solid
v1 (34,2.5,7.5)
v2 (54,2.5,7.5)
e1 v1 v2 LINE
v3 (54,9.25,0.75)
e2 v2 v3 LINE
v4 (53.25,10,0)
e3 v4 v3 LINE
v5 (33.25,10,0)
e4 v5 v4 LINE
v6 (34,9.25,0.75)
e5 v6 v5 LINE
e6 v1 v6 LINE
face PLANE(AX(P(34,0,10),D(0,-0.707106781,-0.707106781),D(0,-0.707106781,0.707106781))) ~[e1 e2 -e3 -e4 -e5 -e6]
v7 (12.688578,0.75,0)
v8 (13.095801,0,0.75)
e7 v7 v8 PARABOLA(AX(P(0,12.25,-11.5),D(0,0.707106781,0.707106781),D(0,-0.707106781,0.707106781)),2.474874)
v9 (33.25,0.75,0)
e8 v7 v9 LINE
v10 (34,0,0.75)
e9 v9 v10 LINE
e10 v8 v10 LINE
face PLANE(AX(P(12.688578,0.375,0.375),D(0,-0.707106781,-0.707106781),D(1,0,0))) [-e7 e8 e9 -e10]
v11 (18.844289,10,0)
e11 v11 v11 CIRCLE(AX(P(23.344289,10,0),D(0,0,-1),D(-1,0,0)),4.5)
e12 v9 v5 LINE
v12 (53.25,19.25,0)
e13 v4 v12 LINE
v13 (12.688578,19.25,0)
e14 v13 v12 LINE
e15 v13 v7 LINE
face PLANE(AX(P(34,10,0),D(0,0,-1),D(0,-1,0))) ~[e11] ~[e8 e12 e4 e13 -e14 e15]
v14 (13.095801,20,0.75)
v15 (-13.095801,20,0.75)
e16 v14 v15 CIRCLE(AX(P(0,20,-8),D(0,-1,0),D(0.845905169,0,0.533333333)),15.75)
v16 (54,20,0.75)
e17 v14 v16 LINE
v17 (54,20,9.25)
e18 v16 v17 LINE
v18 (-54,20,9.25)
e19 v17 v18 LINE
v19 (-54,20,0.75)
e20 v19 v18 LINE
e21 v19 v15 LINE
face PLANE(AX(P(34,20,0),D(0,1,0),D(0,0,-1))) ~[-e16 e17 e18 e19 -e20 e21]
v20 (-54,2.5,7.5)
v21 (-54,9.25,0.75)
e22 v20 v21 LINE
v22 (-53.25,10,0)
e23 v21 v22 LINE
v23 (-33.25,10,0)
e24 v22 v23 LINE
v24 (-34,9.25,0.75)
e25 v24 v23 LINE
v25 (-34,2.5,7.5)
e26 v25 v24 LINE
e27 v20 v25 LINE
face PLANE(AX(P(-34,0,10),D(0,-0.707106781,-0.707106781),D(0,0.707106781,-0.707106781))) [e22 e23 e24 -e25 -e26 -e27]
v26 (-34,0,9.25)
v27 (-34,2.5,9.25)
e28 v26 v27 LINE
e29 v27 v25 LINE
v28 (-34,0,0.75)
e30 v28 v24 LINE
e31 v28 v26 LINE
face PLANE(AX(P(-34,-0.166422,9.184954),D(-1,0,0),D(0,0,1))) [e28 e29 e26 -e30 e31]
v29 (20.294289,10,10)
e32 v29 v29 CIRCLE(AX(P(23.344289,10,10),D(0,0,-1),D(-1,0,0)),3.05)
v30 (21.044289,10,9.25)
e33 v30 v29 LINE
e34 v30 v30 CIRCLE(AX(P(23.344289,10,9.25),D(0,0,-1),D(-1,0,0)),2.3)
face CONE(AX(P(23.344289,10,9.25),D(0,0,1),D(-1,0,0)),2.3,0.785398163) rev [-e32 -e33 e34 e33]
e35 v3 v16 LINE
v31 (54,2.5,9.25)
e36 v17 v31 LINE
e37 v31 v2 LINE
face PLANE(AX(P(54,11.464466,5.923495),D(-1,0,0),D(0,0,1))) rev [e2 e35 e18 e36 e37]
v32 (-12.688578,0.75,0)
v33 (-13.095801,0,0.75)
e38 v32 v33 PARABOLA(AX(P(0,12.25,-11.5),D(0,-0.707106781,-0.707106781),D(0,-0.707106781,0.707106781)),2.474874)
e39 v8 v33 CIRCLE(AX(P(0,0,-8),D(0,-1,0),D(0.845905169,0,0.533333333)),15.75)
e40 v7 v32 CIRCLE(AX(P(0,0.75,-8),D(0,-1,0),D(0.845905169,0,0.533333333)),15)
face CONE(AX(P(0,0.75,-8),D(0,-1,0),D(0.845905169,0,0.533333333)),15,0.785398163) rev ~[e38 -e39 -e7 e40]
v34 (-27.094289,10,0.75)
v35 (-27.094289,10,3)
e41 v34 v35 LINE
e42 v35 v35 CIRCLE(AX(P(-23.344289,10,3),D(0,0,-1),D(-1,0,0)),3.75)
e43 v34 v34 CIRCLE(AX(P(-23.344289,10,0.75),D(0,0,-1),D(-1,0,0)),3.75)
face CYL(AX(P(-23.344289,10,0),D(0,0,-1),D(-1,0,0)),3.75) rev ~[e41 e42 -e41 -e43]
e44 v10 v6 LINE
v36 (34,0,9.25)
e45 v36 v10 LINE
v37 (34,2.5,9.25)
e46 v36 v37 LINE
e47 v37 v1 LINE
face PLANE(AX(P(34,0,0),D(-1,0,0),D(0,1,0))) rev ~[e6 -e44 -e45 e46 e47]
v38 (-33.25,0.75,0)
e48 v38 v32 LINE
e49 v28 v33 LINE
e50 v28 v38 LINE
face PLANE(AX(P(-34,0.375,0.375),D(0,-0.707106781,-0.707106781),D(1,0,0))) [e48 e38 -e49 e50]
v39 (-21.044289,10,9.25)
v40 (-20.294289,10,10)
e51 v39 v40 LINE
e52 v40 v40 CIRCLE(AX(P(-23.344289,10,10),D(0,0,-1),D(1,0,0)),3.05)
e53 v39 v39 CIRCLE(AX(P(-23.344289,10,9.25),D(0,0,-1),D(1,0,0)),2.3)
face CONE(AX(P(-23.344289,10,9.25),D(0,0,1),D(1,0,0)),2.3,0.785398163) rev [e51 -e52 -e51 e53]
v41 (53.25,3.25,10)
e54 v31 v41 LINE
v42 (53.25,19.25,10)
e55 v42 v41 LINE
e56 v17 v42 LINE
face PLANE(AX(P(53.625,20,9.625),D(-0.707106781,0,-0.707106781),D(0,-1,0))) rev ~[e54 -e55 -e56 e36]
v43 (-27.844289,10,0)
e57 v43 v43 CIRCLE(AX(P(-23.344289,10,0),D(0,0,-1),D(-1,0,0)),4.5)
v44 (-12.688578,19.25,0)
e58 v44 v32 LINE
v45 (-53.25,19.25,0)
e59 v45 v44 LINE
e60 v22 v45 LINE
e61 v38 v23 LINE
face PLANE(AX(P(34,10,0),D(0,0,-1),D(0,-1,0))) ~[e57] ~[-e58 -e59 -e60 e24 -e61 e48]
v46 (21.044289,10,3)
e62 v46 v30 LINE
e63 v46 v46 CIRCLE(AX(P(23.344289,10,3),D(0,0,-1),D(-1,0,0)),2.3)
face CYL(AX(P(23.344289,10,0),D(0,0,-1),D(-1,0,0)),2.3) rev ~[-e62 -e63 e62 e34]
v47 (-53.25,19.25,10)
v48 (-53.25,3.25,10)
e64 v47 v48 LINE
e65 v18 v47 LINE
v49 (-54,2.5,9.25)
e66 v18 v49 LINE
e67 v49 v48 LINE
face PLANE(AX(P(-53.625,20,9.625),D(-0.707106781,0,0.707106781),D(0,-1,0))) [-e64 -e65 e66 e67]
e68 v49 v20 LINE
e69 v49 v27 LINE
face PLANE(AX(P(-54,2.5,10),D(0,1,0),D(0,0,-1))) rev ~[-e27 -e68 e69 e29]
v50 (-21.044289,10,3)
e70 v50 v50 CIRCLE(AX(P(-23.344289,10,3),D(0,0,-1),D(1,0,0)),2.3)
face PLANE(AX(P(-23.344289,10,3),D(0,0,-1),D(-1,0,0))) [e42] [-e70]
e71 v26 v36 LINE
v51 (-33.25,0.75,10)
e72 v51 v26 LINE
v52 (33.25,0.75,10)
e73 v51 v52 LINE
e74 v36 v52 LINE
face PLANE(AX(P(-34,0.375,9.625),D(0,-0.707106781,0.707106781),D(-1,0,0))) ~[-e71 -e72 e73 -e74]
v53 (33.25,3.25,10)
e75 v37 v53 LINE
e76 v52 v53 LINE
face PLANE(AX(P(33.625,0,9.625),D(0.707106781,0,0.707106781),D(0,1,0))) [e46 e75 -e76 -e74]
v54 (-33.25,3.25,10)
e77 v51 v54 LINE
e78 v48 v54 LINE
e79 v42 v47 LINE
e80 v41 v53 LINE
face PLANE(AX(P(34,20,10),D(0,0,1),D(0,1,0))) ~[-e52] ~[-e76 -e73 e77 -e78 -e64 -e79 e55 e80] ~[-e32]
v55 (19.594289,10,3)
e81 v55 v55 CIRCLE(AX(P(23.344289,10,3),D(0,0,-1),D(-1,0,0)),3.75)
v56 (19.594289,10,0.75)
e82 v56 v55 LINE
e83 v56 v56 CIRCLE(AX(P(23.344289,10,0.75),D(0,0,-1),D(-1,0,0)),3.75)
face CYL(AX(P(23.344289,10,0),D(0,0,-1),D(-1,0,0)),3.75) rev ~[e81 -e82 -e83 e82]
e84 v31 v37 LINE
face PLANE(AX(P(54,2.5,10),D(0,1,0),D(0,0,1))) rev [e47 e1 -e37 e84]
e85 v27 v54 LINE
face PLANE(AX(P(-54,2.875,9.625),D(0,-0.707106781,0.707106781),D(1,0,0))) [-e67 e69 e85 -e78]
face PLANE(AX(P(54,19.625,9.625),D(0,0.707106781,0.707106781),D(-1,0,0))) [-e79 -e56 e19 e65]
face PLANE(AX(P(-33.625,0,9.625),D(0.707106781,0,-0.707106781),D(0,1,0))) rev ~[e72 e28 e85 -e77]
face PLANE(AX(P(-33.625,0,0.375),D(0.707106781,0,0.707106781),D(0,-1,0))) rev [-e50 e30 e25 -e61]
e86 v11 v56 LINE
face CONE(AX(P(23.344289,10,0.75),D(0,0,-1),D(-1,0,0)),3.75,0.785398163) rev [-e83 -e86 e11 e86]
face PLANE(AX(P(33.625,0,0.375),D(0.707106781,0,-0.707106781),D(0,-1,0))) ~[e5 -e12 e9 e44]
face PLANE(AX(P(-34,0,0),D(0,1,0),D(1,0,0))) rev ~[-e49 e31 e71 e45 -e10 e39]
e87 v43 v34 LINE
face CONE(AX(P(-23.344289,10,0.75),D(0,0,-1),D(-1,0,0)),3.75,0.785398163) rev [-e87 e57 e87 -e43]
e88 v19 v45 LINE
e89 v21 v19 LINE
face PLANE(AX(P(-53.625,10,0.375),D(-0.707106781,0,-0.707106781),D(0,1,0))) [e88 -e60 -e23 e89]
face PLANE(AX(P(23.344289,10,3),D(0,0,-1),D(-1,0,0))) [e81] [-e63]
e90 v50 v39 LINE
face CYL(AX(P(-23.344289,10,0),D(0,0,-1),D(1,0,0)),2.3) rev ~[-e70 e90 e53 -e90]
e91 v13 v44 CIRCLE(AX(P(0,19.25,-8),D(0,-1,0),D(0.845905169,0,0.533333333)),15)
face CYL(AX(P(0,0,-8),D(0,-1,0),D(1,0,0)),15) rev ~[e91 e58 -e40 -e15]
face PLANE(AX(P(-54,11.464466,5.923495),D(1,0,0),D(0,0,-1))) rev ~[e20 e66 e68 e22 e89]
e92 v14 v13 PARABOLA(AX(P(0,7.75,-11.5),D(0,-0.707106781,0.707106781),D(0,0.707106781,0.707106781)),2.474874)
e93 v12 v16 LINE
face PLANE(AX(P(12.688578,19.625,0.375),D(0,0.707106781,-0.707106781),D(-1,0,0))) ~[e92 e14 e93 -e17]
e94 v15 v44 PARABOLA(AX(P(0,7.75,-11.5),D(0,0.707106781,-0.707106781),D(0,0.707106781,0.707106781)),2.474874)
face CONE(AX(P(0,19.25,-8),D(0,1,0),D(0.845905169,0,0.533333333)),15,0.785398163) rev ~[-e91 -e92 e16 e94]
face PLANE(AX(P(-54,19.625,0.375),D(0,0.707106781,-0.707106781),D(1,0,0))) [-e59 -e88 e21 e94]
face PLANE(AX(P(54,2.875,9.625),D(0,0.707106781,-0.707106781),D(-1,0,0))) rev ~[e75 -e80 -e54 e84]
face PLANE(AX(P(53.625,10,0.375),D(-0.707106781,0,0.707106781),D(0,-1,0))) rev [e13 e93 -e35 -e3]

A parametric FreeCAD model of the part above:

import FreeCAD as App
import Part
import Sketcher

V = App.Vector
Q = App.Units.Quantity


def edges_at(feature, points):
    """Names of the edges that pass closest to the given points."""
    edges = feature.Shape.Edges
    near = lambda p: min(range(len(edges)), key=lambda i: edges[i].distToShape(Part.Vertex(*p))[0])
    return sorted({f"Edge{near(p) + 1}" for p in points})

doc = App.newDocument("Part")
params = doc.addObject("Spreadsheet::Sheet", "Params")
for row, (alias, value) in enumerate([
    ("sketch1_width", "68 mm"),
    ("sketch1_height", "20 mm"),
    ("pad1_length", "10 mm"),
    ("sketch2_width", "20 mm"),
    ("sketch2_width2", "10 mm"),
    ("pad2_length", "20 mm"),
    ("sketch3_diameter", "30 mm"),
    ("pocket1_length", "20 mm"),
    ("sketch4_diameter", "4.6 mm"),
    ("pocket2_length", "20 mm"),
    ("sketch5_diameter", "7.5 mm"),
    ("pocket3_length", "3 mm"),
    ("pocket4_length", "20 mm"),
    ("chamfer_size", "0.75 mm"),
], start=1):
    params.set(f"A{row}", alias)
    params.set(f"B{row}", "=" + value)
    params.setAlias(f"B{row}", alias)

body = doc.addObject("PartDesign::Body", "Body")

# Sketch on XY plane
sketch1 = body.newObject("Sketcher::SketchObject", "Sketch")
sketch1.AttachmentSupport = (doc.getObject("XY_Plane"), [""])
sketch1.MapMode = "FlatFace"
sketch1.addGeometry(Part.LineSegment(V(-34, 20, 0), V(-34, 0, 0)), False)
sketch1.addGeometry(Part.LineSegment(V(-34, 0, 0), V(34, 0, 0)), False)
sketch1.addGeometry(Part.LineSegment(V(34, 0, 0), V(34, 20, 0)), False)
sketch1.addGeometry(Part.LineSegment(V(34, 20, 0), V(-34, 20, 0)), False)
sketch1.addConstraint(Sketcher.Constraint("Coincident", 0, 2, 1, 1))
sketch1.addConstraint(Sketcher.Constraint("Coincident", 1, 2, 2, 1))
sketch1.addConstraint(Sketcher.Constraint("Coincident", 2, 2, 3, 1))
sketch1.addConstraint(Sketcher.Constraint("Coincident", 3, 2, 0, 1))
sketch1.addConstraint(Sketcher.Constraint("Vertical", 0))
sketch1.addConstraint(Sketcher.Constraint("Horizontal", 1))
sketch1.addConstraint(Sketcher.Constraint("Vertical", 2))
sketch1.addConstraint(Sketcher.Constraint("Horizontal", 3))
sketch1.addConstraint(Sketcher.Constraint("Symmetric", 0, 2, 1, 2, -1, 1))
sketch1.addConstraint(Sketcher.Constraint("DistanceX", 1, 1, 1, 2, Q("68 mm")))
sketch1.addConstraint(Sketcher.Constraint("DistanceY", 0, 2, 0, 1, Q("20 mm")))
sketch1.setExpression("Constraints[9]", "Params.sketch1_width")
sketch1.setExpression("Constraints[10]", "Params.sketch1_height")
pad1 = body.newObject("PartDesign::Pad", "Pad")
pad1.Profile = sketch1
pad1.setExpression("Length", "Params.pad1_length")

# Sketch on YZ plane
sketch2 = body.newObject("Sketcher::SketchObject", "Sketch001")
sketch2.AttachmentSupport = (doc.getObject("YZ_Plane"), [""])
sketch2.MapMode = "FlatFace"
sketch2.AttachmentOffset = App.Placement(V(0, 0, -34), App.Rotation())
sketch2.addGeometry(Part.LineSegment(V(10, 0, 0), V(0, 10, 0)), False)
sketch2.addGeometry(Part.LineSegment(V(0, 10, 0), V(20, 10, 0)), False)
sketch2.addGeometry(Part.LineSegment(V(20, 10, 0), V(20, 0, 0)), False)
sketch2.addGeometry(Part.LineSegment(V(20, 0, 0), V(10, 0, 0)), False)
sketch2.addConstraint(Sketcher.Constraint("Coincident", 0, 2, 1, 1))
sketch2.addConstraint(Sketcher.Constraint("Coincident", 1, 2, 2, 1))
sketch2.addConstraint(Sketcher.Constraint("Coincident", 2, 2, 3, 1))
sketch2.addConstraint(Sketcher.Constraint("Coincident", 3, 2, 0, 1))
sketch2.addConstraint(Sketcher.Constraint("Horizontal", 1))
sketch2.addConstraint(Sketcher.Constraint("Vertical", 2))
sketch2.addConstraint(Sketcher.Constraint("Horizontal", 3))
sketch2.addConstraint(Sketcher.Constraint("PointOnObject", 0, 2, -2))
sketch2.addConstraint(Sketcher.Constraint("PointOnObject", 2, 2, -1))
sketch2.addConstraint(Sketcher.Constraint("Equal", 3, 2))
sketch2.addConstraint(Sketcher.Constraint("DistanceX", 1, 1, 1, 2, Q("20 mm")))
sketch2.addConstraint(Sketcher.Constraint("DistanceX", 3, 2, 3, 1, Q("10 mm")))
sketch2.setExpression("Constraints[10]", "Params.sketch2_width")
sketch2.setExpression("Constraints[11]", "Params.sketch2_width2")
pad2 = body.newObject("PartDesign::Pad", "Pad001")
pad2.Profile = sketch2
pad2.setExpression("Length", "Params.pad2_length")
pad2.Reversed = True
doc.recompute()

mirrored = body.newObject("PartDesign::Mirrored", "Mirrored")
mirrored.Originals = [pad2]
mirrored.MirrorPlane = (doc.getObject("YZ_Plane"), [""])
body.Tip = mirrored

# Sketch on XZ plane
sketch3 = body.newObject("Sketcher::SketchObject", "Sketch002")
sketch3.AttachmentSupport = (doc.getObject("XZ_Plane"), [""])
sketch3.MapMode = "FlatFace"
sketch3.addGeometry(Part.Circle(V(0, -8, 0), V(0, 0, 1), 15), False)
sketch3.addConstraint(Sketcher.Constraint("PointOnObject", 0, 3, -2))
sketch3.addConstraint(Sketcher.Constraint("Diameter", 0, Q("30 mm")))
sketch3.addConstraint(Sketcher.Constraint("DistanceY", 0, 3, -1, 1, Q("8 mm")))
sketch3.setExpression("Constraints[1]", "Params.sketch3_diameter")
pocket1 = body.newObject("PartDesign::Pocket", "Pocket")
pocket1.Profile = sketch3
pocket1.setExpression("Length", "Params.pocket1_length")

# Sketch on XY plane
sketch4 = body.newObject("Sketcher::SketchObject", "Sketch003")
sketch4.AttachmentSupport = (doc.getObject("XY_Plane"), [""])
sketch4.MapMode = "FlatFace"
sketch4.addGeometry(Part.Circle(V(23.344289, 10, 0), V(0, 0, 1), 2.3), False)
sketch4.addGeometry(Part.Circle(V(-23.344289, 10, 0), V(0, 0, 1), 2.3), False)
sketch4.addConstraint(Sketcher.Constraint("Equal", 0, 1))
sketch4.addConstraint(Sketcher.Constraint("Symmetric", 0, 3, 1, 3, -2))
sketch4.addConstraint(Sketcher.Constraint("Diameter", 0, Q("4.6 mm")))
sketch4.addConstraint(Sketcher.Constraint("DistanceY", -1, 1, 0, 3, Q("10 mm")))
sketch4.addConstraint(Sketcher.Constraint("DistanceX", -1, 1, 0, 3, Q("23.344289 mm")))
sketch4.setExpression("Constraints[2]", "Params.sketch4_diameter")
pocket2 = body.newObject("PartDesign::Pocket", "Pocket001")
pocket2.Profile = sketch4
pocket2.setExpression("Length", "Params.pocket2_length")
pocket2.Reversed = True

# Sketch on XY plane
sketch5 = body.newObject("Sketcher::SketchObject", "Sketch004")
sketch5.AttachmentSupport = (doc.getObject("XY_Plane"), [""])
sketch5.MapMode = "FlatFace"
sketch5.addGeometry(Part.Circle(V(23.344289, 10, 0), V(0, 0, 1), 3.75), False)
sketch5.addGeometry(Part.Circle(V(-23.344289, 10, 0), V(0, 0, 1), 3.75), False)
sketch5.addConstraint(Sketcher.Constraint("Equal", 0, 1))
sketch5.addConstraint(Sketcher.Constraint("Symmetric", 0, 3, 1, 3, -2))
sketch5.addConstraint(Sketcher.Constraint("Diameter", 0, Q("7.5 mm")))
sketch5.addConstraint(Sketcher.Constraint("DistanceY", -1, 1, 0, 3, Q("10 mm")))
sketch5.addConstraint(Sketcher.Constraint("DistanceX", -1, 1, 0, 3, Q("23.344289 mm")))
sketch5.setExpression("Constraints[2]", "Params.sketch5_diameter")
pocket3 = body.newObject("PartDesign::Pocket", "Pocket002")
pocket3.Profile = sketch5
pocket3.setExpression("Length", "Params.pocket3_length")
pocket3.Reversed = True

# Sketch on YZ plane
sketch6 = body.newObject("Sketcher::SketchObject", "Sketch005")
sketch6.AttachmentSupport = (doc.getObject("YZ_Plane"), [""])
sketch6.MapMode = "FlatFace"
sketch6.AttachmentOffset = App.Placement(V(0, 0, -54), App.Rotation())
sketch6.addGeometry(Part.LineSegment(V(2.5, 10, 0), V(2.5, 4.852605, 0)), False)
sketch6.addGeometry(Part.LineSegment(V(2.5, 4.852605, 0), V(-2.668604, 4.852605, 0)), False)
sketch6.addGeometry(Part.LineSegment(V(-2.668604, 4.852605, 0), V(-2.788105, 13.586779, 0)), False)
sketch6.addGeometry(Part.LineSegment(V(-2.788105, 13.586779, 0), V(2.151025, 13.586779, 0)), False)
sketch6.addGeometry(Part.LineSegment(V(2.151025, 13.586779, 0), V(2.5, 10, 0)), False)
sketch6.addConstraint(Sketcher.Constraint("Coincident", 0, 2, 1, 1))
sketch6.addConstraint(Sketcher.Constraint("Coincident", 1, 2, 2, 1))
sketch6.addConstraint(Sketcher.Constraint("Coincident", 2, 2, 3, 1))
sketch6.addConstraint(Sketcher.Constraint("Coincident", 3, 2, 4, 1))
sketch6.addConstraint(Sketcher.Constraint("Coincident", 4, 2, 0, 1))
sketch6.addConstraint(Sketcher.Constraint("Vertical", 0))
sketch6.addConstraint(Sketcher.Constraint("Horizontal", 1))
sketch6.addConstraint(Sketcher.Constraint("Horizontal", 3))
sketch6.addConstraint(Sketcher.Constraint("DistanceY", -1, 1, 4, 2, Q("10 mm")))
sketch6.addConstraint(Sketcher.Constraint("DistanceX", -1, 1, 0, 2, Q("2.5 mm")))
sketch6.addConstraint(Sketcher.Constraint("DistanceX", 3, 1, 3, 2, Q("4.93913 mm")))
sketch6.addConstraint(Sketcher.Constraint("DistanceX", 2, 2, 1, 2, Q("0.119501 mm")))
sketch6.addConstraint(Sketcher.Constraint("DistanceX", 1, 2, 1, 1, Q("5.168604 mm")))
sketch6.addConstraint(Sketcher.Constraint("DistanceY", 0, 2, 0, 1, Q("5.147395 mm")))
sketch6.addConstraint(Sketcher.Constraint("DistanceY", -1, 1, 2, 2, Q("13.586779 mm")))
pocket4 = body.newObject("PartDesign::Pocket", "Pocket003")
pocket4.Profile = sketch6
pocket4.setExpression("Length", "Params.pocket4_length")
pocket4.Reversed = True
doc.recompute()

mirrored2 = body.newObject("PartDesign::Mirrored", "Mirrored001")
mirrored2.Originals = [pocket4]
mirrored2.MirrorPlane = (doc.getObject("YZ_Plane"), [""])
body.Tip = mirrored2
doc.recompute()

chamfer = body.newObject("PartDesign::Chamfer", "Chamfer")
chamfer.Base = (mirrored2, edges_at(mirrored2, [
    (54, 11.25, 10),
    (44, 2.5, 10),
    (34, 1.25, 10),
    (0, 0, 10),
    (-34, 5, 0),
    (-54, 15, 0),
    (54, 15, 0),
    (-33.344, 20, 0),
    (23.344, 0, 0),
    (0, 20, 7),
    (0, 0, 7),
    (0, 20, 10),
    (34, 5, 0),
    (-23.344, 0, 0),
    (25.644, 10, 10),
    (-25.644, 10, 10),
    (33.344, 20, 0),
    (27.094, 10, 0),
    (-19.594, 10, 0),
    (-54, 11.25, 10),
    (-44, 2.5, 10),
    (-34, 1.25, 10),
]))
chamfer.setExpression("Size", "Params.chamfer_size")

doc.recompute()
